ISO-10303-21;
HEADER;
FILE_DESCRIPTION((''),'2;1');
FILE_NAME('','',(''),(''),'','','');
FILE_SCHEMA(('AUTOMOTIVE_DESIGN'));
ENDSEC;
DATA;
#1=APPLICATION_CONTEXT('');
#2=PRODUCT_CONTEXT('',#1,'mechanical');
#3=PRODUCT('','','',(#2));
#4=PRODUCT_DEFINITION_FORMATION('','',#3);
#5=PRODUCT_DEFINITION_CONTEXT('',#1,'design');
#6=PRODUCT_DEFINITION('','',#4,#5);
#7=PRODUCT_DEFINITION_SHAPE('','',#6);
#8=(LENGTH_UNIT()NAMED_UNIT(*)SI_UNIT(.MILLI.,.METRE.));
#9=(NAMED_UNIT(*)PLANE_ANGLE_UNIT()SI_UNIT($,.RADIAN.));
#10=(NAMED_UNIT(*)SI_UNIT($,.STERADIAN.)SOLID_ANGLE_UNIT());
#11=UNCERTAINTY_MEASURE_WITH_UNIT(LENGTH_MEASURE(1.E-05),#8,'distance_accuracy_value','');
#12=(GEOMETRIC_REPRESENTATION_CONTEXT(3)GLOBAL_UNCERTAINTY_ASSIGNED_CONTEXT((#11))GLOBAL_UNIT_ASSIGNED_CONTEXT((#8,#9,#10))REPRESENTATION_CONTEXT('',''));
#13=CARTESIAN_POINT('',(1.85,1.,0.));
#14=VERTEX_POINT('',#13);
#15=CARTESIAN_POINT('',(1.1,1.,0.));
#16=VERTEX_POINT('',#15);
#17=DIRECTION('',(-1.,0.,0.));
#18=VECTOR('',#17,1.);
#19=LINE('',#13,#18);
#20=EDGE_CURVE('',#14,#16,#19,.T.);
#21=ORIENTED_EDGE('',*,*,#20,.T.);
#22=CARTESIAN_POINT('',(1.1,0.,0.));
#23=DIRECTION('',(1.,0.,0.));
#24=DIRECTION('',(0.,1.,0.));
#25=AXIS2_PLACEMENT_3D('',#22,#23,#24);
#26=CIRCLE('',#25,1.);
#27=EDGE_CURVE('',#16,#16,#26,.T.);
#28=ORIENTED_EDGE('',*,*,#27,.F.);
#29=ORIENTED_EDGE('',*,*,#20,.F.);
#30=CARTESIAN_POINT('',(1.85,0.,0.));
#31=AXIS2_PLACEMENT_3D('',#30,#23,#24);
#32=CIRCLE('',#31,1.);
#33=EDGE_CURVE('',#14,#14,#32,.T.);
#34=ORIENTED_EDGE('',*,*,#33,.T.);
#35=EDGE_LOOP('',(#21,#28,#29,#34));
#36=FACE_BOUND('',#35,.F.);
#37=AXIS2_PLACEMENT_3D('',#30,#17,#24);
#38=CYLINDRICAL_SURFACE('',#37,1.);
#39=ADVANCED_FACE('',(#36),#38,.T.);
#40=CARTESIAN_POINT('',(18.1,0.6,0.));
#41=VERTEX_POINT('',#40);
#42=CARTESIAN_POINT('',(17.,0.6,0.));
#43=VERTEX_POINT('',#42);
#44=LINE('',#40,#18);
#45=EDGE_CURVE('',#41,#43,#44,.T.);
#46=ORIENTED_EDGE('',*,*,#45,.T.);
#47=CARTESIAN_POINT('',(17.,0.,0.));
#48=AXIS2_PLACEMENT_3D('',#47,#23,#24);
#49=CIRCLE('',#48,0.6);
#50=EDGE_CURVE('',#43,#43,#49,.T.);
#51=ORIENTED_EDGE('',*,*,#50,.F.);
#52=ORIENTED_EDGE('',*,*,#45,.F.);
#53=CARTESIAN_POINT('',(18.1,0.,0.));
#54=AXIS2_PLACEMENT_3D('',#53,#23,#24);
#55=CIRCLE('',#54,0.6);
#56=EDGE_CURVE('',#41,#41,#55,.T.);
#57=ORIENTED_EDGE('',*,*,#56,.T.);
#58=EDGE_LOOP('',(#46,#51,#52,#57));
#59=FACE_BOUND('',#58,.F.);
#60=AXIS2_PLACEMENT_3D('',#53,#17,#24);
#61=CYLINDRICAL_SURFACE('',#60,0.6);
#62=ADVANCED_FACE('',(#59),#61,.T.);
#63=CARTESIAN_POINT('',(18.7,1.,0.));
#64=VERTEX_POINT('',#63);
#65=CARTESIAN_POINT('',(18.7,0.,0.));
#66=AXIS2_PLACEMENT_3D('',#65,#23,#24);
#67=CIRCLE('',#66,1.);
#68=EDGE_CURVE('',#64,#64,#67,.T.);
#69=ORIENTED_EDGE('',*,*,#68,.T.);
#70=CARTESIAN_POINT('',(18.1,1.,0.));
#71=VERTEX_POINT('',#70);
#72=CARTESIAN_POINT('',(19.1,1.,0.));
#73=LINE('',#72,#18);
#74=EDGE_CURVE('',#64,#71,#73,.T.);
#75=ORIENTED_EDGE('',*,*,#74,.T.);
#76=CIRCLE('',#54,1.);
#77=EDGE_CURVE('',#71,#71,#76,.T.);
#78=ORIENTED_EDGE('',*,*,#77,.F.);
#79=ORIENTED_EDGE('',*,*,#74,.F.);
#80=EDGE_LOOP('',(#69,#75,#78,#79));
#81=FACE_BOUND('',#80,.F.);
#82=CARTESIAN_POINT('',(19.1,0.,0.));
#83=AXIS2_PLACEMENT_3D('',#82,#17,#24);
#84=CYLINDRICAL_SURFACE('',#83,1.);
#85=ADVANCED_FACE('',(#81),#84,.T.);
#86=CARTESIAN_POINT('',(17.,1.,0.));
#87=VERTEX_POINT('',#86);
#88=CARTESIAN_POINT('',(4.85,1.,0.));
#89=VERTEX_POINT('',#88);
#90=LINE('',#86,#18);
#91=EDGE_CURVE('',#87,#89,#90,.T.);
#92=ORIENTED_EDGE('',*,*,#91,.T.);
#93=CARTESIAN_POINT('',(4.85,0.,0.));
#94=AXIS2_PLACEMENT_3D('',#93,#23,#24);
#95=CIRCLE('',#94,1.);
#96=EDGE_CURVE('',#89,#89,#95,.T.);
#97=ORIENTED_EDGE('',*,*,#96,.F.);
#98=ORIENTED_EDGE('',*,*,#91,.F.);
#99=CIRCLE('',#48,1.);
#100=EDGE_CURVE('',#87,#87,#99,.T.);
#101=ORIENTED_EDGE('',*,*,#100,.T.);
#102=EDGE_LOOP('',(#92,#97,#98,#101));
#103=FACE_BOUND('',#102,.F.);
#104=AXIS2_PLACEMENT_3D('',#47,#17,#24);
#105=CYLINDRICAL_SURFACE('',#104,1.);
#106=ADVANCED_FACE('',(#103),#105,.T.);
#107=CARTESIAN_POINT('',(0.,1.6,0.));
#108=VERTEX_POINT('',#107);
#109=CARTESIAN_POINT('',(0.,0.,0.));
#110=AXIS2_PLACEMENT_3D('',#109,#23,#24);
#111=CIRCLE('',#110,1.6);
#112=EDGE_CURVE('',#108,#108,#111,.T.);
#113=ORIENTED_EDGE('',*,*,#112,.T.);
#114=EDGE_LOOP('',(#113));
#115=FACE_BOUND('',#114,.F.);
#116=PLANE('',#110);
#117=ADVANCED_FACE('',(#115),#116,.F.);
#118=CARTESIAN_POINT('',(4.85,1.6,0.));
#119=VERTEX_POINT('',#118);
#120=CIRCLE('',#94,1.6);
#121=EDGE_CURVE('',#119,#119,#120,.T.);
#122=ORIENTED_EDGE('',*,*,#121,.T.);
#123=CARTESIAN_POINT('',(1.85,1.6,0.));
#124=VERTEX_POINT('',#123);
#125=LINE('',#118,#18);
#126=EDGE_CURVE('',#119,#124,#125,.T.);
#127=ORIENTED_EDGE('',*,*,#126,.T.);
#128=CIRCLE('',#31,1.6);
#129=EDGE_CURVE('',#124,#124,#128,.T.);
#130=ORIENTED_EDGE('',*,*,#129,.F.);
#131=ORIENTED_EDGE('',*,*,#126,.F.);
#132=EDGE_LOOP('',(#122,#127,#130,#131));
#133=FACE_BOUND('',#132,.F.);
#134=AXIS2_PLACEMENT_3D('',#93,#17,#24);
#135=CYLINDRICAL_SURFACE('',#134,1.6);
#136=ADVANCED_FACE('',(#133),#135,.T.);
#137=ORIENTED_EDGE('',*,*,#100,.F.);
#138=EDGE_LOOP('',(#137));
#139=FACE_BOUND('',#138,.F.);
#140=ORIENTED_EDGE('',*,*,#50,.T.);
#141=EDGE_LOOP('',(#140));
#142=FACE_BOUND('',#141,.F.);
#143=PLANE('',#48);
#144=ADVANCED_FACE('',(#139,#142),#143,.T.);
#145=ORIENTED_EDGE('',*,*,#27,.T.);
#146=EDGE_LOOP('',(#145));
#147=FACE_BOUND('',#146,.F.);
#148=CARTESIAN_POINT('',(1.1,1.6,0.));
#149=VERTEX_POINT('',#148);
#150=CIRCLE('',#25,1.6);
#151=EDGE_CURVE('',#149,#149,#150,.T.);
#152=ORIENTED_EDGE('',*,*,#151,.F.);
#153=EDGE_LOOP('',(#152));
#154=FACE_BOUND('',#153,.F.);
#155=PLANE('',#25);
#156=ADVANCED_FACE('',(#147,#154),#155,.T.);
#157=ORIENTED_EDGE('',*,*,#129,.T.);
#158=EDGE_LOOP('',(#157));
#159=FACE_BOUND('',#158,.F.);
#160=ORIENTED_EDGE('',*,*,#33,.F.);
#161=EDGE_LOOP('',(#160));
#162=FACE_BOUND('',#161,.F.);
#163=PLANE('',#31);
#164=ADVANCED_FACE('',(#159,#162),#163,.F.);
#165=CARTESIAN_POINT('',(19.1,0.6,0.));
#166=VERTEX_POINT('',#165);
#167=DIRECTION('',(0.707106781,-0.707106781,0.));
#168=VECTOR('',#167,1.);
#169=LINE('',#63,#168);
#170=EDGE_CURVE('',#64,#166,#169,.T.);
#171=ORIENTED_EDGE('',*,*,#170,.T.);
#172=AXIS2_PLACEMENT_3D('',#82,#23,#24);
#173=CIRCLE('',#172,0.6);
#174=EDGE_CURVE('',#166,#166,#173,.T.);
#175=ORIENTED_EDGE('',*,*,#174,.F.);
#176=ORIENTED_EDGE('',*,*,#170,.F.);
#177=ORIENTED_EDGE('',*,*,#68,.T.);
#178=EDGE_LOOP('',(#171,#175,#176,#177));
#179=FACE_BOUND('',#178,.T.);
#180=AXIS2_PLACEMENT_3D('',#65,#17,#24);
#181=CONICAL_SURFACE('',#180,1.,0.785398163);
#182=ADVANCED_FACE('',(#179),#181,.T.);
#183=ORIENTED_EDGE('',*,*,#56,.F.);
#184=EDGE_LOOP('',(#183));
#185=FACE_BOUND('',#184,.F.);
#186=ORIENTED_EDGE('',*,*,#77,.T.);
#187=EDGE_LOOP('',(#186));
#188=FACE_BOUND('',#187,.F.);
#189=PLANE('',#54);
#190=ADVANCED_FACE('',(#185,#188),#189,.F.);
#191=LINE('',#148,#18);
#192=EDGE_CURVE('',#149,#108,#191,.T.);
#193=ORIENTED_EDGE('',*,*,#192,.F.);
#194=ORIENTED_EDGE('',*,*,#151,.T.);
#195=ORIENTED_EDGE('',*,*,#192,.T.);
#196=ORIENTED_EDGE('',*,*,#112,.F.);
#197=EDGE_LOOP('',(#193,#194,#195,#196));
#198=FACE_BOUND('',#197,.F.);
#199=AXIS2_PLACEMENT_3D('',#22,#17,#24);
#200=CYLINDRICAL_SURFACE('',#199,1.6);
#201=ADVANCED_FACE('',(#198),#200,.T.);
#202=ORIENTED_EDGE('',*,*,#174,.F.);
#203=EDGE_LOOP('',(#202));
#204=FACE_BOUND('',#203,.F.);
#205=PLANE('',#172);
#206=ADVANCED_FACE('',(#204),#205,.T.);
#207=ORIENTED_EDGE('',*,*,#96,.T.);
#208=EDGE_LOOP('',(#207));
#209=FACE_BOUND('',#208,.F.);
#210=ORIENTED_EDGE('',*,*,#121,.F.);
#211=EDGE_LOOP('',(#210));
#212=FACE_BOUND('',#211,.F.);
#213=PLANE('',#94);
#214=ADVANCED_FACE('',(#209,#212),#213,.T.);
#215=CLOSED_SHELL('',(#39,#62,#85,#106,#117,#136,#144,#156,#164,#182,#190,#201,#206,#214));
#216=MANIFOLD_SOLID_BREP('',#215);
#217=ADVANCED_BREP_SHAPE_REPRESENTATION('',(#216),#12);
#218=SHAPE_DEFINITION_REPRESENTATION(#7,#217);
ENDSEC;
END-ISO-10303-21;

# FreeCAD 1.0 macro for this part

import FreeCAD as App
import Part
import Sketcher
from FreeCAD import Vector
Q = App.Units.Quantity


def edges_at(feature, points):
    """Names of the edges that pass closest to the given points."""
    edges = feature.Shape.Edges
    near = lambda p: min(range(len(edges)), key=lambda i: edges[i].distToShape(Part.Vertex(*p))[0])
    return sorted({f"Edge{near(p) + 1}" for p in points})


def add_polygon(sketch, points):
    """Adds a closed chain of lines whose ends are joined by coincident constraints."""
    first, n = sketch.GeometryCount, len(points)
    for a, b in zip(points, points[1:] + points[:1]):
        sketch.addGeometry(Part.LineSegment(App.Vector(*a, 0), App.Vector(*b, 0)), False)
    for i in range(n):
        sketch.addConstraint(Sketcher.Constraint("Coincident", first + i, 2, first + (i + 1) % n, 1))

doc = App.newDocument("Part")
params = doc.addObject("Spreadsheet::Sheet", "Params")
for row, (alias, value) in enumerate([
    ("sketch1_width", "19.1 mm"),
    ("sketch1_width2", "1.1 mm"),
    ("sketch1_width3", "3 mm"),
    ("sketch1_height", "1.6 mm"),
    ("sketch1_height2", "0.4 mm"),
    ("revolution_angle", "360 deg"),
    ("chamfer_size", "0.4 mm"),
], start=1):
    params.set(f"A{row}", alias)
    params.set(f"B{row}", "=" + value)
    params.setAlias(f"B{row}", alias)

body = doc.addObject("PartDesign::Body", "Body")

sketch1 = body.newObject("Sketcher::SketchObject", "Sketch")
sketch1.AttachmentSupport = (doc.getObject("XY_Plane"), [""])
sketch1.MapMode = "FlatFace"
add_polygon(sketch1, [(0, 1.6), (0, 0), (19.1, 0), (19.1, 1), (18.1, 1), (18.1, 0.6), (17, 0.6), (17, 1), (4.85, 1), (4.85, 1.6), (1.85, 1.6), (1.85, 1), (1.1, 1), (1.1, 1.6)])
sketch1.addConstraint(Sketcher.Constraint("Vertical", 0))
sketch1.addConstraint(Sketcher.Constraint("Horizontal", 1))
sketch1.addConstraint(Sketcher.Constraint("Vertical", 2))
sketch1.addConstraint(Sketcher.Constraint("Horizontal", 3))
sketch1.addConstraint(Sketcher.Constraint("Vertical", 4))
sketch1.addConstraint(Sketcher.Constraint("Horizontal", 5))
sketch1.addConstraint(Sketcher.Constraint("Vertical", 6))
sketch1.addConstraint(Sketcher.Constraint("Horizontal", 7))
sketch1.addConstraint(Sketcher.Constraint("Vertical", 8))
sketch1.addConstraint(Sketcher.Constraint("Horizontal", 9))
sketch1.addConstraint(Sketcher.Constraint("Vertical", 10))
sketch1.addConstraint(Sketcher.Constraint("Horizontal", 11))
sketch1.addConstraint(Sketcher.Constraint("Vertical", 12))
sketch1.addConstraint(Sketcher.Constraint("Horizontal", 13))
sketch1.addConstraint(Sketcher.Constraint("Coincident", 0, 2, -1, 1))
sketch1.addConstraint(Sketcher.Constraint("Horizontal", 3, 2, 6, 2))
sketch1.addConstraint(Sketcher.Constraint("Horizontal", 7, 2, 10, 2))
sketch1.addConstraint(Sketcher.Constraint("Horizontal", 9, 2, 12, 2))
sketch1.addConstraint(Sketcher.Constraint("Equal", 5, 13))
sketch1.addConstraint(Sketcher.Constraint("Equal", 3, 2))
sketch1.addConstraint(Sketcher.Constraint("DistanceX", 1, 1, 1, 2, Q("19.1 mm")))
sketch1.addConstraint(Sketcher.Constraint("DistanceX", 5, 2, 5, 1, Q("1.1 mm")))
sketch1.addConstraint(Sketcher.Constraint("DistanceX", -1, 1, 5, 2, Q("17 mm")))
sketch1.addConstraint(Sketcher.Constraint("DistanceX", 9, 2, 9, 1, Q("3 mm")))
sketch1.addConstraint(Sketcher.Constraint("DistanceX", -1, 1, 7, 2, Q("4.85 mm")))
sketch1.addConstraint(Sketcher.Constraint("DistanceY", 0, 2, 0, 1, Q("1.6 mm")))
sketch1.addConstraint(Sketcher.Constraint("DistanceY", 4, 2, 4, 1, Q("0.4 mm")))
sketch1.setExpression("Constraints[34]", "Params.sketch1_width")
sketch1.setExpression("Constraints[35]", "Params.sketch1_width2")
sketch1.setExpression("Constraints[37]", "Params.sketch1_width3")
sketch1.setExpression("Constraints[39]", "Params.sketch1_height")
sketch1.setExpression("Constraints[40]", "Params.sketch1_height2")
revolution = body.newObject("PartDesign::Revolution", "Revolution")
revolution.Profile = sketch1
revolution.ReferenceAxis = (sketch1, ["H_Axis"])
revolution.setExpression("Angle", "Params.revolution_angle")
doc.recompute()

chamfer = body.newObject("PartDesign::Chamfer", "Chamfer")
chamfer.Base = (revolution, edges_at(revolution, [(19.1, -1, 0)]))
chamfer.setExpression("Size", "Params.chamfer_size")

doc.recompute()
